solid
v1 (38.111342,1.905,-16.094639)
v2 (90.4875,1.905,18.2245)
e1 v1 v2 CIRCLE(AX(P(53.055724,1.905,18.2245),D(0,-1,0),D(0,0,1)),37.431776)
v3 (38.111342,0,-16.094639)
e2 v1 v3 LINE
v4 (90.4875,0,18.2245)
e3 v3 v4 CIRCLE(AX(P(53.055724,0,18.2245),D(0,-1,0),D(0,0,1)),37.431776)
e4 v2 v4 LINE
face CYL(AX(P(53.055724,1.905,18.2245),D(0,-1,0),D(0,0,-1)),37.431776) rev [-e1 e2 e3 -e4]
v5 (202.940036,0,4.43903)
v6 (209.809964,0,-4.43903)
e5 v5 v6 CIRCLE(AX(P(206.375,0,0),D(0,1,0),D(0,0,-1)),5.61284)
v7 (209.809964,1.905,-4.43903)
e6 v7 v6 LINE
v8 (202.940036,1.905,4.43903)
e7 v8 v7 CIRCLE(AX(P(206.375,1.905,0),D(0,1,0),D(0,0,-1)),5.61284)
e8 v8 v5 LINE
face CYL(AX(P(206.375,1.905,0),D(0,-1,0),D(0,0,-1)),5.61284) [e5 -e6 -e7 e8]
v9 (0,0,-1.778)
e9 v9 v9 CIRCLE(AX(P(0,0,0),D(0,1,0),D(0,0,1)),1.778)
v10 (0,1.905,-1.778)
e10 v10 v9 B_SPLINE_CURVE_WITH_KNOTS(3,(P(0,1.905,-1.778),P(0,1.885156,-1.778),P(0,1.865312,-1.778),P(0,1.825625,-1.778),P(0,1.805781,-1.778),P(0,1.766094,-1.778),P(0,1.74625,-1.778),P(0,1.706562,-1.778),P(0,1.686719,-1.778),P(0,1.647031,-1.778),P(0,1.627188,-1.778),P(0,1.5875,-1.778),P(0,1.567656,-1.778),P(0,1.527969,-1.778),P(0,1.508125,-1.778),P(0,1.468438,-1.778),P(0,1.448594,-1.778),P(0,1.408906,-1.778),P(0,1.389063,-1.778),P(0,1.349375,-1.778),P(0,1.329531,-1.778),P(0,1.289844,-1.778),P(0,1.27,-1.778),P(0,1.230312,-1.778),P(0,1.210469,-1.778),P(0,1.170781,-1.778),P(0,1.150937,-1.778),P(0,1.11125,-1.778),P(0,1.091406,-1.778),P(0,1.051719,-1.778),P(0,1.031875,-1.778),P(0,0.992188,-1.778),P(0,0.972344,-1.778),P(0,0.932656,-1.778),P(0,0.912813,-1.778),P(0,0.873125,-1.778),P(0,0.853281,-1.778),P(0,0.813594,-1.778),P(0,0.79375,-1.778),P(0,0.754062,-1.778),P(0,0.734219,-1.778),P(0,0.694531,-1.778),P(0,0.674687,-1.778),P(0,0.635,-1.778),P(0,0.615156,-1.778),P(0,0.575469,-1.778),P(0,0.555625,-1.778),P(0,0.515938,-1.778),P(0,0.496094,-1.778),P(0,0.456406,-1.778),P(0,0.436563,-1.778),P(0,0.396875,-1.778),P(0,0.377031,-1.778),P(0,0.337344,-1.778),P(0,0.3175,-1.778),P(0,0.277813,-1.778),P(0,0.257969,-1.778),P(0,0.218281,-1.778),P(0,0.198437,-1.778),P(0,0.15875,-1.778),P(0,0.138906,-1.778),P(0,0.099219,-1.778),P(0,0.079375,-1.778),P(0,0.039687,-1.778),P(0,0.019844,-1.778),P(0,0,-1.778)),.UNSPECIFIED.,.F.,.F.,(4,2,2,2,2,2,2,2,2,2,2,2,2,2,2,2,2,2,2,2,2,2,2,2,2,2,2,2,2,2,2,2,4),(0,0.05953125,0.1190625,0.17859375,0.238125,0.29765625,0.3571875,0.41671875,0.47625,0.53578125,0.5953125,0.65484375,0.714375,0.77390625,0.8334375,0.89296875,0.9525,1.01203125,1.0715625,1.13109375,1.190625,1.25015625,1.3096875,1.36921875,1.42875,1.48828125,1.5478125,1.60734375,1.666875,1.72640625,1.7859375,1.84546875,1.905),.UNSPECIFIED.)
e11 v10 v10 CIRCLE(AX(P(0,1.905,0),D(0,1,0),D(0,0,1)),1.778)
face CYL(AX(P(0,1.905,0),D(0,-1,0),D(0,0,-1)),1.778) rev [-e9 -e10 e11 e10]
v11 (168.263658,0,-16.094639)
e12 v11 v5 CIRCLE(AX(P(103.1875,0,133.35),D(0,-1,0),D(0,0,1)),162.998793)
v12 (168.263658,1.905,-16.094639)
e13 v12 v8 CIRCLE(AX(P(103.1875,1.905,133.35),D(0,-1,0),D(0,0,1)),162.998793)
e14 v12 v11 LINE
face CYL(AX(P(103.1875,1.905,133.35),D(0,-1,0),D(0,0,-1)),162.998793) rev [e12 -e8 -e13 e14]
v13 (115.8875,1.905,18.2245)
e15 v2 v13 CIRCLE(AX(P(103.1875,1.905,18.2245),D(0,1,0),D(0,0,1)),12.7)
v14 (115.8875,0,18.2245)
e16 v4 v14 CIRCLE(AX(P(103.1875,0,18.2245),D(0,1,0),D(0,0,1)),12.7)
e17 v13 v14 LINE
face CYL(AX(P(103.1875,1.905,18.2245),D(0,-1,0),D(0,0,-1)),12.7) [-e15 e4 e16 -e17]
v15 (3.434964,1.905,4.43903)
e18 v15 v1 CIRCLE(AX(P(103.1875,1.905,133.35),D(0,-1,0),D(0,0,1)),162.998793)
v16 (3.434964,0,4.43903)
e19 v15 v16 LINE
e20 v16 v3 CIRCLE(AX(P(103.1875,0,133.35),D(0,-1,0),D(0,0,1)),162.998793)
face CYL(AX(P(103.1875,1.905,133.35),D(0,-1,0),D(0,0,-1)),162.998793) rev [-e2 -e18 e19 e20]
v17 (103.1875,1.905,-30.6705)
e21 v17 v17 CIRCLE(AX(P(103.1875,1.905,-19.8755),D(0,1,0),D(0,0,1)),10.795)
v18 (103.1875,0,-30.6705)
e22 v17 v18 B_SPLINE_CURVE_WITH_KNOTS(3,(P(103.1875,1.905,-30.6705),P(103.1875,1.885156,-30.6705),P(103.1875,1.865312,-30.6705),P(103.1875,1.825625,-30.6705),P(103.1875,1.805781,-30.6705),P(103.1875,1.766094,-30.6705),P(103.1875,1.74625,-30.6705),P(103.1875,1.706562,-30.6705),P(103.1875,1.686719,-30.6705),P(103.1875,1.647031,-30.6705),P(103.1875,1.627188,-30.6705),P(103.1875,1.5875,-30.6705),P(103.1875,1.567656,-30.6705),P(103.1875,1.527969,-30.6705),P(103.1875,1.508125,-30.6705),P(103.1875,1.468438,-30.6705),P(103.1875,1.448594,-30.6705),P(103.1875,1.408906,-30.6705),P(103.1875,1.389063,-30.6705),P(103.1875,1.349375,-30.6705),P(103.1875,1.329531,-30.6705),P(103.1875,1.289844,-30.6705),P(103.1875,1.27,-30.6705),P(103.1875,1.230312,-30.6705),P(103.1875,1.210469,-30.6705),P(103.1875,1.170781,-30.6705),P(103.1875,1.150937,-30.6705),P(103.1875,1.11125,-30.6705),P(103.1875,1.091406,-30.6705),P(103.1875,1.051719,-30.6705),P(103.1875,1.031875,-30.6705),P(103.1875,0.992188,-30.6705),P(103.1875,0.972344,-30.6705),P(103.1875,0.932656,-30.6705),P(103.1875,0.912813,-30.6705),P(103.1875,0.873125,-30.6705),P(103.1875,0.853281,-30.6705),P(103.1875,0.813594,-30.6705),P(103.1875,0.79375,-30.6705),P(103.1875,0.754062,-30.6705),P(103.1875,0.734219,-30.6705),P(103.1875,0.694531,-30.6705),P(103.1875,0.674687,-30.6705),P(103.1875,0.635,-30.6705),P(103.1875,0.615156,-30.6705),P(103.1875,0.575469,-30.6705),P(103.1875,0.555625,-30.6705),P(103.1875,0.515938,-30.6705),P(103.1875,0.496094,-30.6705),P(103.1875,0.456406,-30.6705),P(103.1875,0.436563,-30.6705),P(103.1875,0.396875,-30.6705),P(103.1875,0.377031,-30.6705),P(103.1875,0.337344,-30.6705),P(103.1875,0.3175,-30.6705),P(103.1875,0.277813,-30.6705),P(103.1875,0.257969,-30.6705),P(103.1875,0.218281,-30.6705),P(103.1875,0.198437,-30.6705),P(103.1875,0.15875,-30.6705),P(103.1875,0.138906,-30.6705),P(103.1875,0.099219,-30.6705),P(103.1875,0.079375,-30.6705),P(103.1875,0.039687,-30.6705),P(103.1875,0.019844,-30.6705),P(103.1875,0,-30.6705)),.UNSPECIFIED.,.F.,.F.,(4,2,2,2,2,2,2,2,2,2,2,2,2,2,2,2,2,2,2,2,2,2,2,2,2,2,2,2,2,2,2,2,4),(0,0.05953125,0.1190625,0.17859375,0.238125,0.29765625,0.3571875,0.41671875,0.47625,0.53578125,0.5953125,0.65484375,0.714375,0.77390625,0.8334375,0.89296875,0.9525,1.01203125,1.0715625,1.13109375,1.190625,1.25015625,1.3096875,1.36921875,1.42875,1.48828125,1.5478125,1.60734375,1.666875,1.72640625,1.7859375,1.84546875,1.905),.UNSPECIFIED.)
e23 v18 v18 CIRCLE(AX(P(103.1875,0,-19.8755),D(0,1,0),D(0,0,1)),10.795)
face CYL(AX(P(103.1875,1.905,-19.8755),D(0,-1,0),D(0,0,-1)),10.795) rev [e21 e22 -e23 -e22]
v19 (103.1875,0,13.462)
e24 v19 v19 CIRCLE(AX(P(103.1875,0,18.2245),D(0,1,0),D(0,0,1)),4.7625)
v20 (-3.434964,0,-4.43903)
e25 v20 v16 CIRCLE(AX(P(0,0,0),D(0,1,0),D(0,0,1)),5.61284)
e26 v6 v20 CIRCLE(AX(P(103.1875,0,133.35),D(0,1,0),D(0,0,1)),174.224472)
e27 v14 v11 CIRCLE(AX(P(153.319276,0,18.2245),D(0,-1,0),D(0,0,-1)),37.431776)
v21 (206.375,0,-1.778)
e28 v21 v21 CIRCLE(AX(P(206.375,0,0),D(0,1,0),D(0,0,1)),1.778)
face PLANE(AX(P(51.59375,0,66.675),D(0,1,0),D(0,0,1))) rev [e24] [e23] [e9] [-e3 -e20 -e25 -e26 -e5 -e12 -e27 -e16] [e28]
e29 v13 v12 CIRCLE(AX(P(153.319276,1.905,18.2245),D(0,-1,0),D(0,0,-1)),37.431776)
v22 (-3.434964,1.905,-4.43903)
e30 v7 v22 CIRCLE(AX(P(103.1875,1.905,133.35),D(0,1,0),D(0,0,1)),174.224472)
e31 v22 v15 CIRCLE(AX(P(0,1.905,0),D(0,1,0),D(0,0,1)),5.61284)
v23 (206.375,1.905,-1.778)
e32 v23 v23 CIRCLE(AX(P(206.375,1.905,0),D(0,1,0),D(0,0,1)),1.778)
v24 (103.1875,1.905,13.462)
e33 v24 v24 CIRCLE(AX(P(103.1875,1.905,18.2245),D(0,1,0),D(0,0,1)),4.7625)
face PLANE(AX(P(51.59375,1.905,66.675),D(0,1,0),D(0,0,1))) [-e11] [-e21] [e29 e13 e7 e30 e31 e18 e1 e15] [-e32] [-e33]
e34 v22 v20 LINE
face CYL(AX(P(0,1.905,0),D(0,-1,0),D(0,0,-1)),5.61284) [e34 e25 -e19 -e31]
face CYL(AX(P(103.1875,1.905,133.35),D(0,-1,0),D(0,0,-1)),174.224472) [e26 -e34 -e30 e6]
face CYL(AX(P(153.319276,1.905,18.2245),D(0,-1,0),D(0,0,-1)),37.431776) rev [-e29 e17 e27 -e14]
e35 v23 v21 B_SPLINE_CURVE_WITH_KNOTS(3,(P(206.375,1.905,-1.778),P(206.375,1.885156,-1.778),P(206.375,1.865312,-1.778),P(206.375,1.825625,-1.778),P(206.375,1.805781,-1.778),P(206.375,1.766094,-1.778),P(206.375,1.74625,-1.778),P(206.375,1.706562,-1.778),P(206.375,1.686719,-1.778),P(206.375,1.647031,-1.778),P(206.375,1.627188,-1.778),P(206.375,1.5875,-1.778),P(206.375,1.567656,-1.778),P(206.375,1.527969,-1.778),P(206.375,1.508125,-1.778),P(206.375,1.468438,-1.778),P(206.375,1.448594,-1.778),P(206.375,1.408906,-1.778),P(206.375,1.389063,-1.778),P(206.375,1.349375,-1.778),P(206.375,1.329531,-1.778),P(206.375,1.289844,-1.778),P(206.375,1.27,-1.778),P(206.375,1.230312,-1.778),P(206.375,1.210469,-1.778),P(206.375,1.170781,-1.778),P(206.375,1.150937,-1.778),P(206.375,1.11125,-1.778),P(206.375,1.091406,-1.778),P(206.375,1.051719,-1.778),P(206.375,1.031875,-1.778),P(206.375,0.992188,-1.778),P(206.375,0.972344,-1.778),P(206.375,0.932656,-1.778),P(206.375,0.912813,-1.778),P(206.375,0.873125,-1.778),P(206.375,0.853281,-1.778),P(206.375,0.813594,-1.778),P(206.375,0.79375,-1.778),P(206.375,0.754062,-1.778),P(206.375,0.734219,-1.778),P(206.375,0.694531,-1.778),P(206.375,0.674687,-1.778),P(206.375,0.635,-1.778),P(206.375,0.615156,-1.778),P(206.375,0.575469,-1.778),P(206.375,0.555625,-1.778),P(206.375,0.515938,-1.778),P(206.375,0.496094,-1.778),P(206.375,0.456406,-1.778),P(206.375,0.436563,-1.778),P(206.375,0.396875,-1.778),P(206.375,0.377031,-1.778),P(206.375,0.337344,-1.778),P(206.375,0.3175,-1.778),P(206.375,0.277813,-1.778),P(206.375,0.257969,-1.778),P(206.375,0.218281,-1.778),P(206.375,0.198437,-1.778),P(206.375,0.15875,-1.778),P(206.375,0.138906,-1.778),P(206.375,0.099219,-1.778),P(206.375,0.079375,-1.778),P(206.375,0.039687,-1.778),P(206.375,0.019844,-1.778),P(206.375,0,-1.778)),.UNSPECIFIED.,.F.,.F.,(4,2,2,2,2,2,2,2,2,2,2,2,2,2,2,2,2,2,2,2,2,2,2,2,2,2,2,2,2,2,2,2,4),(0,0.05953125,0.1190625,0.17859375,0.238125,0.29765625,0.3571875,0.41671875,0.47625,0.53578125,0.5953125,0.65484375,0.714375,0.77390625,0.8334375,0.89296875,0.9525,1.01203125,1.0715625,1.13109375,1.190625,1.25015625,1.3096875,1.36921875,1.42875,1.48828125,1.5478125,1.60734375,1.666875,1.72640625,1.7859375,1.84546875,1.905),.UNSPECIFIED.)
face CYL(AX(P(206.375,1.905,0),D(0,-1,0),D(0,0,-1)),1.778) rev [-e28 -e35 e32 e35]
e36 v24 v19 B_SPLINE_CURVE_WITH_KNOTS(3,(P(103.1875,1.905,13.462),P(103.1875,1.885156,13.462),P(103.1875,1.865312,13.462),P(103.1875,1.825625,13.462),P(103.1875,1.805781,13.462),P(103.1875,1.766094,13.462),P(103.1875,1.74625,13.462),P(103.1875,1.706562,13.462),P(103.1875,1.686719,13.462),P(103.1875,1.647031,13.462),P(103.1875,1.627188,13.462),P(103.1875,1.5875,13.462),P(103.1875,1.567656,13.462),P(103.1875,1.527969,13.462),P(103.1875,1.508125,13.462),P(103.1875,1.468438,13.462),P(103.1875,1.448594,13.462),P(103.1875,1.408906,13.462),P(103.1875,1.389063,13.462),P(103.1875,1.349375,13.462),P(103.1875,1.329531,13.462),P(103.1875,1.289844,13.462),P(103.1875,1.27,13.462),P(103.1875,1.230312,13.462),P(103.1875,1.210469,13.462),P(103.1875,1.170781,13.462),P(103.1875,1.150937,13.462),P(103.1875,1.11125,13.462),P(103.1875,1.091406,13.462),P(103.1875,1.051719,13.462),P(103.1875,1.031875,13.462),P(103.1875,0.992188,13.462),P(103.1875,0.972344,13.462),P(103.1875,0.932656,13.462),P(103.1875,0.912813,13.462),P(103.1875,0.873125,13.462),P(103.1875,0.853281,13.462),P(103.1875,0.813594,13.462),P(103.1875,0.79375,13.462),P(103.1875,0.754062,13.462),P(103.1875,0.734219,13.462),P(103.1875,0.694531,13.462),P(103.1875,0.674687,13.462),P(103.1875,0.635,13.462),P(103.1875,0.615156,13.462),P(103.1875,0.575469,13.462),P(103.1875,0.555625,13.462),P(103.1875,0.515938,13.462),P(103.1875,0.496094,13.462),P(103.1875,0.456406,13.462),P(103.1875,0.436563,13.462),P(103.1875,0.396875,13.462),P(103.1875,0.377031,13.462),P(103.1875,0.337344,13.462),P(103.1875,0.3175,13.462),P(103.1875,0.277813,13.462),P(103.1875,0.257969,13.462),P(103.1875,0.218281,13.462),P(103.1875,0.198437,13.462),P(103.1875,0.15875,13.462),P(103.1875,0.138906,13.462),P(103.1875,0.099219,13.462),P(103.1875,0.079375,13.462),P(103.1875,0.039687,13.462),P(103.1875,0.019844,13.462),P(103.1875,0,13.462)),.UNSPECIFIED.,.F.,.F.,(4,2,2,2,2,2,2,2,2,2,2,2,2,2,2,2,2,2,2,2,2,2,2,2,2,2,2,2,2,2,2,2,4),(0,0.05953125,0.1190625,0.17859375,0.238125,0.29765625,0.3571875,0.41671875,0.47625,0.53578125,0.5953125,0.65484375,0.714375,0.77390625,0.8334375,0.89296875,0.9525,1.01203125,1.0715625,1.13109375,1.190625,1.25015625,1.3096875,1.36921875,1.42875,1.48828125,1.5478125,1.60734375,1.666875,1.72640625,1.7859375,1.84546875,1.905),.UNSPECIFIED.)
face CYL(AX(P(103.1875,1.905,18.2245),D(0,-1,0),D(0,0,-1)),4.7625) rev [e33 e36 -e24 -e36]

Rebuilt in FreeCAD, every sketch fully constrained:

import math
import FreeCAD as App
import Part
import Sketcher

V = App.Vector
Q = App.Units.Quantity

doc = App.newDocument("Part")
body = doc.addObject("PartDesign::Body", "Body")

# Sketch on XZ plane
sketch1 = body.newObject("Sketcher::SketchObject", "Sketch")
sketch1.AttachmentSupport = (doc.getObject("XZ_Plane"), [""])
sketch1.MapMode = "FlatFace"
sketch1.addGeometry(Part.ArcOfCircle(Part.Circle(V(0, 0, 0), V(0, 0, 1), 5.6), math.radians(52), math.radians(232)), False)
sketch1.addGeometry(Part.ArcOfCircle(Part.Circle(V(103.2, 133.3, 0), V(0, 0, 1), 163), math.radians(-127.73), math.radians(-113.53)), False)
sketch1.addGeometry(Part.ArcOfCircle(Part.Circle(V(53.1, 18.2, 0), V(0, 0, 1), 37.4), math.radians(-114), math.radians(0)), False)
sketch1.addGeometry(Part.ArcOfCircle(Part.Circle(V(103.2, 18.2, 0), V(0, 0, 1), 12.7), math.radians(0), math.radians(180)), False)
sketch1.addGeometry(Part.ArcOfCircle(Part.Circle(V(153.3, 18.2, 0), V(0, 0, 1), 37.4), math.radians(-180), math.radians(-66)), False)
sketch1.addGeometry(Part.ArcOfCircle(Part.Circle(V(103.2, 133.3, 0), V(0, 0, 1), 163), math.radians(-66.47), math.radians(-52.27)), False)
sketch1.addGeometry(Part.ArcOfCircle(Part.Circle(V(206.4, 0, 0), V(0, 0, 1), 5.6), math.radians(-52), math.radians(128)), False)
sketch1.addGeometry(Part.ArcOfCircle(Part.Circle(V(103.2, 133.3, 0), V(0, 0, 1), 174.2), math.radians(-128), math.radians(-52)), False)
sketch1.addGeometry(Part.Circle(V(103.2, 18.2, 0), V(0, 0, 1), 4.8), False)
sketch1.addGeometry(Part.Circle(V(0, 0, 0), V(0, 0, 1), 1.8), False)
sketch1.addGeometry(Part.Circle(V(206.4, 0, 0), V(0, 0, 1), 1.8), False)
sketch1.addGeometry(Part.Circle(V(103.2, -19.9, 0), V(0, 0, 1), 10.8), False)
sketch1.addConstraint(Sketcher.Constraint("Tangent", 0, 1, 1, 1))
sketch1.addConstraint(Sketcher.Constraint("Tangent", 1, 2, 2, 1))
sketch1.addConstraint(Sketcher.Constraint("Tangent", 2, 2, 3, 2))
sketch1.addConstraint(Sketcher.Constraint("Tangent", 3, 1, 4, 1))
sketch1.addConstraint(Sketcher.Constraint("Tangent", 4, 2, 5, 1))
sketch1.addConstraint(Sketcher.Constraint("Tangent", 5, 2, 6, 2))
sketch1.addConstraint(Sketcher.Constraint("Tangent", 6, 1, 7, 2))
sketch1.addConstraint(Sketcher.Constraint("Tangent", 7, 1, 0, 2))
sketch1.addConstraint(Sketcher.Constraint("Coincident", 0, 3, -1, 1))
sketch1.addConstraint(Sketcher.Constraint("Coincident", 9, 3, -1, 1))
sketch1.addConstraint(Sketcher.Constraint("Coincident", 5, 3, 1, 3))
sketch1.addConstraint(Sketcher.Constraint("Coincident", 7, 3, 1, 3))
sketch1.addConstraint(Sketcher.Constraint("Coincident", 8, 3, 3, 3))
sketch1.addConstraint(Sketcher.Constraint("Coincident", 10, 3, 6, 3))
sketch1.addConstraint(Sketcher.Constraint("Equal", 2, 4))
sketch1.addConstraint(Sketcher.Constraint("Equal", 1, 5))
sketch1.addConstraint(Sketcher.Constraint("Equal", 9, 10))
sketch1.addConstraint(Sketcher.Constraint("PointOnObject", 6, 3, -1))
sketch1.addConstraint(Sketcher.Constraint("Horizontal", 2, 3, 3, 3))
sketch1.addConstraint(Sketcher.Constraint("Horizontal", 3, 3, 4, 3))
sketch1.addConstraint(Sketcher.Constraint("Vertical", 8, 3, 11, 3))
sketch1.addConstraint(Sketcher.Constraint("Radius", 3, Q("0.5 in")))
sketch1.addConstraint(Sketcher.Constraint("Diameter", 9, Q("0.14 in")))
sketch1.addConstraint(Sketcher.Constraint("Diameter", 11, Q("0.85 in")))
sketch1.addConstraint(Sketcher.Constraint("Diameter", 8, Q("0.375 in")))
sketch1.addConstraint(Sketcher.Constraint("DistanceY", 11, 3, 3, 3, Q("1.5 in")))
sketch1.addConstraint(Sketcher.Constraint("DistanceY", -1, 1, 1, 3, Q("5.25 in")))
sketch1.addConstraint(Sketcher.Constraint("DistanceX", -1, 1, 1, 3, Q("4.0625 in")))
sketch1.addConstraint(Sketcher.Constraint("Radius", 0, Q("5.61284 mm")))
sketch1.addConstraint(Sketcher.Constraint("DistanceY", -1, 1, 2, 3, Q("0.7175 in")))
pad1 = body.newObject("PartDesign::Pad", "Pad")
pad1.Profile = sketch1
pad1.Length = Q("0.075 in")
pad1.Reversed = True

doc.recompute()
